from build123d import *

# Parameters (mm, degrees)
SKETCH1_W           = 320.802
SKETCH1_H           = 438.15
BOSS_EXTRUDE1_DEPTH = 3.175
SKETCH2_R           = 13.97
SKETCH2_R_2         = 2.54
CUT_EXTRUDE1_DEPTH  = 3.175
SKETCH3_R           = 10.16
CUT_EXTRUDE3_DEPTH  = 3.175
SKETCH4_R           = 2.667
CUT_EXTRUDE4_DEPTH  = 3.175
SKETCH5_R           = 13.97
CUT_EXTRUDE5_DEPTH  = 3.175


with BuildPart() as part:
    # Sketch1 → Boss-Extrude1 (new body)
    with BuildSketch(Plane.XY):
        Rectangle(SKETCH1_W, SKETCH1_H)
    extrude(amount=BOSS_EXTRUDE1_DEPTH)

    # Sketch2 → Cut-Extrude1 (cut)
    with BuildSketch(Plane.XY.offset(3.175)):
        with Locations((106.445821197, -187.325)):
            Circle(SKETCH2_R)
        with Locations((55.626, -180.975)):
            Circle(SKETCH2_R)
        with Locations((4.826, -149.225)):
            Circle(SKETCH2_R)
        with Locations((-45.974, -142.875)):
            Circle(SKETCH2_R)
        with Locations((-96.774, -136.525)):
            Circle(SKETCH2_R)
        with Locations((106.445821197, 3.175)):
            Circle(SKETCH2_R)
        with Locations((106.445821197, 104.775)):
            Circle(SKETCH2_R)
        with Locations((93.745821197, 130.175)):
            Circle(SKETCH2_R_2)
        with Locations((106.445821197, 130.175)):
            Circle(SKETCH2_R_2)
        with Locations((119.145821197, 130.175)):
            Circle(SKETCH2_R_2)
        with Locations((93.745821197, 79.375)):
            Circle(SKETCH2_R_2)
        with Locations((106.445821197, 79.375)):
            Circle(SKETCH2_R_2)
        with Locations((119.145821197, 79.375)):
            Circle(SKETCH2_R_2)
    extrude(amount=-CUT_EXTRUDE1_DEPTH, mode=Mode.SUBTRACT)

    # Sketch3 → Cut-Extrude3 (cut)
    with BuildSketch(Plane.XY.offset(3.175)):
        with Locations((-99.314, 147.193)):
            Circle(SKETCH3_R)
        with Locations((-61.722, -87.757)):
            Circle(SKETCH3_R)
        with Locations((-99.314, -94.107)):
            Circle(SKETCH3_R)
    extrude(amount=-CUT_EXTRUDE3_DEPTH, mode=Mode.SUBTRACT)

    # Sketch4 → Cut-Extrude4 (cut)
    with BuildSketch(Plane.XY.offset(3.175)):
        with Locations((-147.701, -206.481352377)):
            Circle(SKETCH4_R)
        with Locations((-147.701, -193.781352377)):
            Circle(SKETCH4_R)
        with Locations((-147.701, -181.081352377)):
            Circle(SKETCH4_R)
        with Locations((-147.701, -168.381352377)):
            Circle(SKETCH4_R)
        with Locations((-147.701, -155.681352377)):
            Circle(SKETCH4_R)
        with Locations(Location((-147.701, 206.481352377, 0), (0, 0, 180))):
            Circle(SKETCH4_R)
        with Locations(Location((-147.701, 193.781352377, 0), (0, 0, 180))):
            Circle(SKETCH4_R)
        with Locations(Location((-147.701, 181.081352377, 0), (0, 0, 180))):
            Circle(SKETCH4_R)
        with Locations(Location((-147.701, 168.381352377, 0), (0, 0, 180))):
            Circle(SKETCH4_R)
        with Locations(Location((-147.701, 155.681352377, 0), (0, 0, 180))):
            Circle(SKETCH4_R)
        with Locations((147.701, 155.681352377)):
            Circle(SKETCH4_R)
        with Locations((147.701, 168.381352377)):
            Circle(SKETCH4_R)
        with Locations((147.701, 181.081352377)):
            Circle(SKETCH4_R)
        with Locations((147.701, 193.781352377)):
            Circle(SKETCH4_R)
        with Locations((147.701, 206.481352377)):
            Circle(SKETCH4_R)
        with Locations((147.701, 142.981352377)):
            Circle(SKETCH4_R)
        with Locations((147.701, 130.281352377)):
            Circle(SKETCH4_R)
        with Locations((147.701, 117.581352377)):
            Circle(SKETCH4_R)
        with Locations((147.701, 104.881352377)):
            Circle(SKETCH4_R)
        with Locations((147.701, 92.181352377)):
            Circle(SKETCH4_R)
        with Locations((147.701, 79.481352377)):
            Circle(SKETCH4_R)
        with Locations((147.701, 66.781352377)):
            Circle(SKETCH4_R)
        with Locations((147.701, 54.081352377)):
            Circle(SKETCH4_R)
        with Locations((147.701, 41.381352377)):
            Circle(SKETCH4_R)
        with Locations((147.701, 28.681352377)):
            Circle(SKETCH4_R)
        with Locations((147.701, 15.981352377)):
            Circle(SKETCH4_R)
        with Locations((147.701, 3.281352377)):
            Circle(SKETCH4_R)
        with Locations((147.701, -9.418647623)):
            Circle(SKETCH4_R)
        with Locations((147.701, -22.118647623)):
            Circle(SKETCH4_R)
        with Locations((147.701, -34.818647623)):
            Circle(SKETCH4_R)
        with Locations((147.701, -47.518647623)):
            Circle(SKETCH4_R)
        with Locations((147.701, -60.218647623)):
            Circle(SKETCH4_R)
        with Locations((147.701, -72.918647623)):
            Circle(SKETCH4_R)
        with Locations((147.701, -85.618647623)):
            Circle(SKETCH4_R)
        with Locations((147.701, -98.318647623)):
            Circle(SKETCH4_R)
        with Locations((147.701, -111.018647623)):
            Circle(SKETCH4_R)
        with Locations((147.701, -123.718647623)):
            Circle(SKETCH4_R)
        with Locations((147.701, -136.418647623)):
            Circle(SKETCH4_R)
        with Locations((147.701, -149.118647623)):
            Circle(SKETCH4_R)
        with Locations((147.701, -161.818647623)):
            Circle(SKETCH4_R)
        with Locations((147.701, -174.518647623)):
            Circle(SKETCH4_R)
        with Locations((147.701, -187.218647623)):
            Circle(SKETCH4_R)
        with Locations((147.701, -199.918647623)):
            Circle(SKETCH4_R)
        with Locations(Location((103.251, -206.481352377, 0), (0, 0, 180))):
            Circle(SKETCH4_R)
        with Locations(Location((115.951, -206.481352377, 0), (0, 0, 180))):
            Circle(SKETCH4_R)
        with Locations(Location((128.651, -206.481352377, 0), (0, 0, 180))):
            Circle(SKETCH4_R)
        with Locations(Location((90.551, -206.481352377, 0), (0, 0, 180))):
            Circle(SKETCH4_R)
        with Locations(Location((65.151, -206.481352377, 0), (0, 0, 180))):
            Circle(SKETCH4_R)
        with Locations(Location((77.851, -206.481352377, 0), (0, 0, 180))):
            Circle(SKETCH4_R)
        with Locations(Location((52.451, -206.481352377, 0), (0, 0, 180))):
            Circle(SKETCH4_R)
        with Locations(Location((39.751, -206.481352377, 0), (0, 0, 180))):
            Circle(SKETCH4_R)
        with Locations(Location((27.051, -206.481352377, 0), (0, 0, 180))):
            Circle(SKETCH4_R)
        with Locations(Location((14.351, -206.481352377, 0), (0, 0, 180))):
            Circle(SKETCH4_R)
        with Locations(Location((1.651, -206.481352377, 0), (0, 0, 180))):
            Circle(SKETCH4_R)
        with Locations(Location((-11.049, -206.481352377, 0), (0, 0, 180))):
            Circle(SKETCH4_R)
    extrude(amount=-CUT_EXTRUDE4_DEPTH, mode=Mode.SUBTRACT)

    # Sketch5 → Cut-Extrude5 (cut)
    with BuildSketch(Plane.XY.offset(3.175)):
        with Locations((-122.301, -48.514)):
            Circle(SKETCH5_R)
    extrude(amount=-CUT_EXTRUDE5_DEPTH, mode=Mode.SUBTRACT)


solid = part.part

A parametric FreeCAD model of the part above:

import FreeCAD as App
import Part
import Sketcher
from FreeCAD import Vector
Q = App.Units.Quantity

doc = App.newDocument("Part")
params = doc.addObject("Spreadsheet::Sheet", "Params")
for row, (alias, value) in enumerate([
    ("sketch1_width", "12.63 in"),
    ("sketch1_height", "17.25 in"),
    ("pad1_length", "0.125 in"),
    ("sketch2_diameter", "1.1 in"),
    ("sketch2_diameter2", "0.2 in"),
    ("pocket1_length", "0.125 in"),
    ("sketch3_diameter", "0.8 in"),
    ("pocket2_length", "0.125 in"),
    ("sketch4_diameter", "0.21 in"),
    ("pocket3_length", "0.125 in"),
    ("sketch5_diameter", "1.1 in"),
    ("pocket4_length", "0.125 in"),
], start=1):
    params.set(f"A{row}", alias)
    params.set(f"B{row}", "=" + value)
    params.setAlias(f"B{row}", alias)

body = doc.addObject("PartDesign::Body", "Body")

sketch1 = body.newObject("Sketcher::SketchObject", "Sketch")
sketch1.AttachmentSupport = (doc.getObject("XY_Plane"), [""])
sketch1.MapMode = "FlatFace"
sketch1.addGeometry([
    Part.LineSegment(Vector(-160, 219, 0), Vector(-160, -219, 0)),
    Part.LineSegment(Vector(-160, -219, 0), Vector(160, -219, 0)),
    Part.LineSegment(Vector(160, -219, 0), Vector(160, 219, 0)),
    Part.LineSegment(Vector(160, 219, 0), Vector(-160, 219, 0)),
], False)
sketch1.addConstraint([
    Sketcher.Constraint("Coincident", 0, 2, 1, 1),
    Sketcher.Constraint("Coincident", 1, 2, 2, 1),
    Sketcher.Constraint("Coincident", 2, 2, 3, 1),
    Sketcher.Constraint("Coincident", 3, 2, 0, 1),
    Sketcher.Constraint("Vertical", 0),
    Sketcher.Constraint("Horizontal", 1),
    Sketcher.Constraint("Vertical", 2),
    Sketcher.Constraint("Horizontal", 3),
    Sketcher.Constraint("Symmetric", 0, 2, 2, 2, -1, 1),
    Sketcher.Constraint("DistanceX", 1, 1, 1, 2, Q("12.63 in")),
    Sketcher.Constraint("DistanceY", 0, 2, 0, 1, Q("17.25 in")),
])
sketch1.setExpression("Constraints[9]", "Params.sketch1_width")
sketch1.setExpression("Constraints[10]", "Params.sketch1_height")
pad1 = body.newObject("PartDesign::Pad", "Pad")
pad1.Profile = sketch1
pad1.setExpression("Length", "Params.pad1_length")

sketch2 = body.newObject("Sketcher::SketchObject", "Sketch001")
sketch2.AttachmentSupport = (doc.getObject("XY_Plane"), [""])
sketch2.MapMode = "FlatFace"
sketch2.AttachmentOffset = App.Placement(Vector(0, 0, 0.125 * 25.4), App.Rotation())
sketch2.addGeometry([
    Part.Circle(Vector(106.4, -187.3, 0), Vector(0, 0, 1), 14),
    Part.Circle(Vector(55.6, -181, 0), Vector(0, 0, 1), 14),
    Part.Circle(Vector(4.8, -149.2, 0), Vector(0, 0, 1), 14),
    Part.Circle(Vector(-46, -142.9, 0), Vector(0, 0, 1), 14),
    Part.Circle(Vector(-96.8, -136.5, 0), Vector(0, 0, 1), 14),
    Part.Circle(Vector(106.4, 3.2, 0), Vector(0, 0, 1), 14),
    Part.Circle(Vector(106.4, 104.8, 0), Vector(0, 0, 1), 14),
    Part.Circle(Vector(93.7, 130.2, 0), Vector(0, 0, 1), 2.5),
    Part.Circle(Vector(106.4, 130.2, 0), Vector(0, 0, 1), 2.5),
    Part.Circle(Vector(119.1, 130.2, 0), Vector(0, 0, 1), 2.5),
    Part.Circle(Vector(93.7, 79.4, 0), Vector(0, 0, 1), 2.5),
    Part.Circle(Vector(106.4, 79.4, 0), Vector(0, 0, 1), 2.5),
    Part.Circle(Vector(119.1, 79.4, 0), Vector(0, 0, 1), 2.5),
], False)
sketch2.addConstraint([
    Sketcher.Constraint("Equal", 0, 1),
    Sketcher.Constraint("Equal", 1, 2),
    Sketcher.Constraint("Equal", 2, 3),
    Sketcher.Constraint("Equal", 3, 4),
    Sketcher.Constraint("Equal", 4, 5),
    Sketcher.Constraint("Equal", 5, 6),
    Sketcher.Constraint("Equal", 7, 8),
    Sketcher.Constraint("Equal", 8, 9),
    Sketcher.Constraint("Equal", 9, 10),
    Sketcher.Constraint("Equal", 10, 11),
    Sketcher.Constraint("Equal", 11, 12),
    Sketcher.Constraint("Horizontal", 7, 3, 8, 3),
    Sketcher.Constraint("Horizontal", 8, 3, 9, 3),
    Sketcher.Constraint("Horizontal", 10, 3, 11, 3),
    Sketcher.Constraint("Horizontal", 11, 3, 12, 3),
    Sketcher.Constraint("Vertical", 0, 3, 5, 3),
    Sketcher.Constraint("Vertical", 5, 3, 6, 3),
    Sketcher.Constraint("Vertical", 6, 3, 8, 3),
    Sketcher.Constraint("Vertical", 7, 3, 10, 3),
    Sketcher.Constraint("Vertical", 8, 3, 11, 3),
    Sketcher.Constraint("Vertical", 9, 3, 12, 3),
    Sketcher.Constraint("Diameter", 0, Q("1.1 in")),
    Sketcher.Constraint("Diameter", 7, Q("0.2 in")),
    Sketcher.Constraint("DistanceX", 2, 3, 1, 3, Q("2 in")),
    Sketcher.Constraint("DistanceX", 3, 3, 2, 3, Q("2 in")),
    Sketcher.Constraint("DistanceX", 4, 3, 3, 3, Q("2 in")),
    Sketcher.Constraint("DistanceY", 0, 3, 4, 3, Q("2 in")),
    Sketcher.Constraint("DistanceY", 2, 3, 5, 3, Q("6 in")),
    Sketcher.Constraint("DistanceY", 5, 3, 6, 3, Q("4 in")),
    Sketcher.Constraint("DistanceY", 6, 3, 7, 3, Q("1 in")),
    Sketcher.Constraint("DistanceX", 7, 3, 9, 3, Q("1 in")),
    Sketcher.Constraint("DistanceY", 10, 3, 6, 3, Q("1 in")),
    Sketcher.Constraint("DistanceY", 0, 3, 2, 3, Q("1.5 in")),
    Sketcher.Constraint("DistanceY", 1, 3, 3, 3, Q("1.5 in")),
    Sketcher.Constraint("DistanceX", 7, 3, 6, 3, Q("0.5 in")),
    Sketcher.Constraint("DistanceX", -1, 1, 1, 3, Q("2.19 in")),
    Sketcher.Constraint("DistanceY", 0, 3, 1, 3, Q("0.25 in")),
    Sketcher.Constraint("DistanceY", 0, 3, -1, 1, Q("7.375 in")),
    Sketcher.Constraint("DistanceX", -1, 1, 0, 3, 106.445821),
])
sketch2.setExpression("Constraints[21]", "Params.sketch2_diameter")
sketch2.setExpression("Constraints[22]", "Params.sketch2_diameter2")
pocket1 = body.newObject("PartDesign::Pocket", "Pocket")
pocket1.Profile = sketch2
pocket1.setExpression("Length", "Params.pocket1_length")

sketch3 = body.newObject("Sketcher::SketchObject", "Sketch002")
sketch3.AttachmentSupport = (doc.getObject("XY_Plane"), [""])
sketch3.MapMode = "FlatFace"
sketch3.AttachmentOffset = App.Placement(Vector(0, 0, 0.125 * 25.4), App.Rotation())
sketch3.addGeometry([
    Part.Circle(Vector(-99, 147, 0), Vector(0, 0, 1), 10),
    Part.Circle(Vector(-62, -88, 0), Vector(0, 0, 1), 10),
    Part.Circle(Vector(-99, -94, 0), Vector(0, 0, 1), 10),
], False)
sketch3.addConstraint([
    Sketcher.Constraint("Equal", 0, 1),
    Sketcher.Constraint("Equal", 1, 2),
    Sketcher.Constraint("Vertical", 0, 3, 2, 3),
    Sketcher.Constraint("Diameter", 0, Q("0.8 in")),
    Sketcher.Constraint("DistanceY", 2, 3, 0, 3, Q("9.5 in")),
    Sketcher.Constraint("DistanceX", 0, 3, -1, 1, Q("3.91 in")),
    Sketcher.Constraint("DistanceX", 1, 3, -1, 1, Q("2.43 in")),
    Sketcher.Constraint("DistanceY", 1, 3, 0, 3, Q("9.25 in")),
    Sketcher.Constraint("DistanceY", -1, 1, 0, 3, Q("5.795 in")),
])
sketch3.setExpression("Constraints[3]", "Params.sketch3_diameter")
pocket2 = body.newObject("PartDesign::Pocket", "Pocket001")
pocket2.Profile = sketch3
pocket2.setExpression("Length", "Params.pocket2_length")

sketch4 = body.newObject("Sketcher::SketchObject", "Sketch003")
sketch4.AttachmentSupport = (doc.getObject("XY_Plane"), [""])
sketch4.MapMode = "FlatFace"
sketch4.AttachmentOffset = App.Placement(Vector(0, 0, 0.125 * 25.4), App.Rotation())
sketch4.addGeometry([
    Part.Circle(Vector(-147.7, -206.5, 0), Vector(0, 0, 1), 2.7),
    Part.Circle(Vector(-147.7, -193.8, 0), Vector(0, 0, 1), 2.7),
    Part.Circle(Vector(-147.7, -181.1, 0), Vector(0, 0, 1), 2.7),
    Part.Circle(Vector(-147.7, -168.4, 0), Vector(0, 0, 1), 2.7),
    Part.Circle(Vector(-147.7, -155.7, 0), Vector(0, 0, 1), 2.7),
    Part.Circle(Vector(-147.7, 206.5, 0), Vector(0, 0, 1), 2.7),
    Part.Circle(Vector(-147.7, 193.8, 0), Vector(0, 0, 1), 2.7),
    Part.Circle(Vector(-147.7, 181.1, 0), Vector(0, 0, 1), 2.7),
    Part.Circle(Vector(-147.7, 168.4, 0), Vector(0, 0, 1), 2.7),
    Part.Circle(Vector(-147.7, 155.7, 0), Vector(0, 0, 1), 2.7),
    Part.Circle(Vector(147.7, 155.7, 0), Vector(0, 0, 1), 2.7),
    Part.Circle(Vector(147.7, 168.4, 0), Vector(0, 0, 1), 2.7),
    Part.Circle(Vector(147.7, 181.1, 0), Vector(0, 0, 1), 2.7),
    Part.Circle(Vector(147.7, 193.8, 0), Vector(0, 0, 1), 2.7),
    Part.Circle(Vector(147.7, 206.5, 0), Vector(0, 0, 1), 2.7),
    Part.Circle(Vector(147.7, 143, 0), Vector(0, 0, 1), 2.7),
    Part.Circle(Vector(147.7, 130.3, 0), Vector(0, 0, 1), 2.7),
    Part.Circle(Vector(147.7, 117.6, 0), Vector(0, 0, 1), 2.7),
    Part.Circle(Vector(147.7, 104.9, 0), Vector(0, 0, 1), 2.7),
    Part.Circle(Vector(147.7, 92.2, 0), Vector(0, 0, 1), 2.7),
    Part.Circle(Vector(147.7, 79.5, 0), Vector(0, 0, 1), 2.7),
    Part.Circle(Vector(147.7, 66.8, 0), Vector(0, 0, 1), 2.7),
    Part.Circle(Vector(147.7, 54.1, 0), Vector(0, 0, 1), 2.7),
    Part.Circle(Vector(147.7, 41.4, 0), Vector(0, 0, 1), 2.7),
    Part.Circle(Vector(147.7, 28.7, 0), Vector(0, 0, 1), 2.7),
    Part.Circle(Vector(147.7, 16, 0), Vector(0, 0, 1), 2.7),
    Part.Circle(Vector(147.7, 3.3, 0), Vector(0, 0, 1), 2.7),
    Part.Circle(Vector(147.7, -9.4, 0), Vector(0, 0, 1), 2.7),
    Part.Circle(Vector(147.7, -22.1, 0), Vector(0, 0, 1), 2.7),
    Part.Circle(Vector(147.7, -34.8, 0), Vector(0, 0, 1), 2.7),
    Part.Circle(Vector(147.7, -47.5, 0), Vector(0, 0, 1), 2.7),
    Part.Circle(Vector(147.7, -60.2, 0), Vector(0, 0, 1), 2.7),
    Part.Circle(Vector(147.7, -72.9, 0), Vector(0, 0, 1), 2.7),
    Part.Circle(Vector(147.7, -85.6, 0), Vector(0, 0, 1), 2.7),
    Part.Circle(Vector(147.7, -98.3, 0), Vector(0, 0, 1), 2.7),
    Part.Circle(Vector(147.7, -111, 0), Vector(0, 0, 1), 2.7),
    Part.Circle(Vector(147.7, -123.7, 0), Vector(0, 0, 1), 2.7),
    Part.Circle(Vector(147.7, -136.4, 0), Vector(0, 0, 1), 2.7),
    Part.Circle(Vector(147.7, -149.1, 0), Vector(0, 0, 1), 2.7),
    Part.Circle(Vector(147.7, -161.8, 0), Vector(0, 0, 1), 2.7),
    Part.Circle(Vector(147.7, -174.5, 0), Vector(0, 0, 1), 2.7),
    Part.Circle(Vector(147.7, -187.2, 0), Vector(0, 0, 1), 2.7),
    Part.Circle(Vector(147.7, -199.9, 0), Vector(0, 0, 1), 2.7),
    Part.Circle(Vector(103.3, -206.5, 0), Vector(0, 0, 1), 2.7),
    Part.Circle(Vector(116, -206.5, 0), Vector(0, 0, 1), 2.7),
    Part.Circle(Vector(128.7, -206.5, 0), Vector(0, 0, 1), 2.7),
    Part.Circle(Vector(90.6, -206.5, 0), Vector(0, 0, 1), 2.7),
    Part.Circle(Vector(65.2, -206.5, 0), Vector(0, 0, 1), 2.7),
    Part.Circle(Vector(77.9, -206.5, 0), Vector(0, 0, 1), 2.7),
    Part.Circle(Vector(52.5, -206.5, 0), Vector(0, 0, 1), 2.7),
    Part.Circle(Vector(39.8, -206.5, 0), Vector(0, 0, 1), 2.7),
    Part.Circle(Vector(27.1, -206.5, 0), Vector(0, 0, 1), 2.7),
    Part.Circle(Vector(14.4, -206.5, 0), Vector(0, 0, 1), 2.7),
    Part.Circle(Vector(1.7, -206.5, 0), Vector(0, 0, 1), 2.7),
    Part.Circle(Vector(-11, -206.5, 0), Vector(0, 0, 1), 2.7),
], False)
sketch4.addConstraint([
    Sketcher.Constraint("Equal", 0, 1),
    Sketcher.Constraint("Equal", 1, 2),
    Sketcher.Constraint("Equal", 2, 3),
    Sketcher.Constraint("Equal", 3, 4),
    Sketcher.Constraint("Equal", 4, 5),
    Sketcher.Constraint("Equal", 5, 6),
    Sketcher.Constraint("Equal", 6, 7),
    Sketcher.Constraint("Equal", 7, 8),
    Sketcher.Constraint("Equal", 8, 9),
    Sketcher.Constraint("Equal", 9, 10),
    Sketcher.Constraint("Equal", 10, 11),
    Sketcher.Constraint("Equal", 11, 12),
    Sketcher.Constraint("Equal", 12, 13),
    Sketcher.Constraint("Equal", 13, 14),
    Sketcher.Constraint("Equal", 14, 15),
    Sketcher.Constraint("Equal", 15, 16),
    Sketcher.Constraint("Equal", 16, 17),
    Sketcher.Constraint("Equal", 17, 18),
    Sketcher.Constraint("Equal", 18, 19),
    Sketcher.Constraint("Equal", 19, 20),
    Sketcher.Constraint("Equal", 20, 21),
    Sketcher.Constraint("Equal", 21, 22),
    Sketcher.Constraint("Equal", 22, 23),
    Sketcher.Constraint("Equal", 23, 24),
    Sketcher.Constraint("Equal", 24, 25),
    Sketcher.Constraint("Equal", 25, 26),
    Sketcher.Constraint("Equal", 26, 27),
    Sketcher.Constraint("Equal", 27, 28),
    Sketcher.Constraint("Equal", 28, 29),
    Sketcher.Constraint("Equal", 29, 30),
    Sketcher.Constraint("Equal", 30, 31),
    Sketcher.Constraint("Equal", 31, 32),
    Sketcher.Constraint("Equal", 32, 33),
    Sketcher.Constraint("Equal", 33, 34),
    Sketcher.Constraint("Equal", 34, 35),
    Sketcher.Constraint("Equal", 35, 36),
    Sketcher.Constraint("Equal", 36, 37),
    Sketcher.Constraint("Equal", 37, 38),
    Sketcher.Constraint("Equal", 38, 39),
    Sketcher.Constraint("Equal", 39, 40),
    Sketcher.Constraint("Equal", 40, 41),
    Sketcher.Constraint("Equal", 41, 42),
    Sketcher.Constraint("Equal", 42, 43),
    Sketcher.Constraint("Equal", 43, 44),
    Sketcher.Constraint("Equal", 44, 45),
    Sketcher.Constraint("Equal", 45, 46),
    Sketcher.Constraint("Equal", 46, 47),
    Sketcher.Constraint("Equal", 47, 48),
    Sketcher.Constraint("Equal", 48, 49),
    Sketcher.Constraint("Equal", 49, 50),
    Sketcher.Constraint("Equal", 50, 51),
    Sketcher.Constraint("Equal", 51, 52),
    Sketcher.Constraint("Equal", 52, 53),
    Sketcher.Constraint("Equal", 53, 54),
    Sketcher.Constraint("Symmetric", 4, 3, 10, 3, -1, 1),
    Sketcher.Constraint("Symmetric", 3, 3, 11, 3, -1, 1),
    Sketcher.Constraint("Symmetric", 2, 3, 12, 3, -1, 1),
    Sketcher.Constraint("Symmetric", 1, 3, 13, 3, -1, 1),
    Sketcher.Constraint("Symmetric", 0, 3, 14, 3, -1, 1),
    Sketcher.Constraint("Symmetric", 9, 3, 10, 3, -2),
    Sketcher.Constraint("Symmetric", 8, 3, 11, 3, -2),
    Sketcher.Constraint("Symmetric", 7, 3, 12, 3, -2),
    Sketcher.Constraint("Symmetric", 6, 3, 13, 3, -2),
    Sketcher.Constraint("Symmetric", 5, 3, 14, 3, -2),
    Sketcher.Constraint("Horizontal", 0, 3, 43, 3),
    Sketcher.Constraint("Horizontal", 43, 3, 44, 3),
    Sketcher.Constraint("Horizontal", 44, 3, 45, 3),
    Sketcher.Constraint("Horizontal", 45, 3, 46, 3),
    Sketcher.Constraint("Horizontal", 46, 3, 47, 3),
    Sketcher.Constraint("Horizontal", 47, 3, 48, 3),
    Sketcher.Constraint("Horizontal", 48, 3, 49, 3),
    Sketcher.Constraint("Horizontal", 49, 3, 50, 3),
    Sketcher.Constraint("Horizontal", 50, 3, 51, 3),
    Sketcher.Constraint("Horizontal", 51, 3, 52, 3),
    Sketcher.Constraint("Horizontal", 52, 3, 53, 3),
    Sketcher.Constraint("Horizontal", 53, 3, 54, 3),
    Sketcher.Constraint("Vertical", 0, 3, 1, 3),
    Sketcher.Constraint("Vertical", 1, 3, 2, 3),
    Sketcher.Constraint("Vertical", 2, 3, 3, 3),
    Sketcher.Constraint("Vertical", 3, 3, 4, 3),
    Sketcher.Constraint("Vertical", 14, 3, 15, 3),
    Sketcher.Constraint("Vertical", 15, 3, 16, 3),
    Sketcher.Constraint("Vertical", 16, 3, 17, 3),
    Sketcher.Constraint("Vertical", 17, 3, 18, 3),
    Sketcher.Constraint("Vertical", 18, 3, 19, 3),
    Sketcher.Constraint("Vertical", 19, 3, 20, 3),
    Sketcher.Constraint("Vertical", 20, 3, 21, 3),
    Sketcher.Constraint("Vertical", 21, 3, 22, 3),
    Sketcher.Constraint("Vertical", 22, 3, 23, 3),
    Sketcher.Constraint("Vertical", 23, 3, 24, 3),
    Sketcher.Constraint("Vertical", 24, 3, 25, 3),
    Sketcher.Constraint("Vertical", 25, 3, 26, 3),
    Sketcher.Constraint("Vertical", 26, 3, 27, 3),
    Sketcher.Constraint("Vertical", 27, 3, 28, 3),
    Sketcher.Constraint("Vertical", 28, 3, 29, 3),
    Sketcher.Constraint("Vertical", 29, 3, 30, 3),
    Sketcher.Constraint("Vertical", 30, 3, 31, 3),
    Sketcher.Constraint("Vertical", 31, 3, 32, 3),
    Sketcher.Constraint("Vertical", 32, 3, 33, 3),
    Sketcher.Constraint("Vertical", 33, 3, 34, 3),
    Sketcher.Constraint("Vertical", 34, 3, 35, 3),
    Sketcher.Constraint("Vertical", 35, 3, 36, 3),
    Sketcher.Constraint("Vertical", 36, 3, 37, 3),
    Sketcher.Constraint("Vertical", 37, 3, 38, 3),
    Sketcher.Constraint("Vertical", 38, 3, 39, 3),
    Sketcher.Constraint("Vertical", 39, 3, 40, 3),
    Sketcher.Constraint("Vertical", 40, 3, 41, 3),
    Sketcher.Constraint("Vertical", 41, 3, 42, 3),
    Sketcher.Constraint("Diameter", 0, Q("0.21 in")),
    Sketcher.Constraint("DistanceY", 0, 3, 2, 3, Q("1 in")),
    Sketcher.Constraint("DistanceY", 1, 3, 3, 3, Q("1 in")),
    Sketcher.Constraint("DistanceY", 2, 3, 4, 3, Q("1 in")),
    Sketcher.Constraint("DistanceY", 15, 3, 11, 3, Q("1 in")),
    Sketcher.Constraint("DistanceY", 16, 3, 10, 3, Q("1 in")),
    Sketcher.Constraint("DistanceY", 17, 3, 15, 3, Q("1 in")),
    Sketcher.Constraint("DistanceY", 18, 3, 16, 3, Q("1 in")),
    Sketcher.Constraint("DistanceY", 19, 3, 17, 3, Q("1 in")),
    Sketcher.Constraint("DistanceY", 20, 3, 18, 3, Q("1 in")),
    Sketcher.Constraint("DistanceY", 21, 3, 19, 3, Q("1 in")),
    Sketcher.Constraint("DistanceY", 22, 3, 20, 3, Q("1 in")),
    Sketcher.Constraint("DistanceY", 23, 3, 21, 3, Q("1 in")),
    Sketcher.Constraint("DistanceY", 24, 3, 22, 3, Q("1 in")),
    Sketcher.Constraint("DistanceY", 25, 3, 23, 3, Q("1 in")),
    Sketcher.Constraint("DistanceY", 26, 3, 24, 3, Q("1 in")),
    Sketcher.Constraint("DistanceY", 27, 3, 25, 3, Q("1 in")),
    Sketcher.Constraint("DistanceY", 28, 3, 26, 3, Q("1 in")),
    Sketcher.Constraint("DistanceY", 29, 3, 27, 3, Q("1 in")),
    Sketcher.Constraint("DistanceY", 30, 3, 28, 3, Q("1 in")),
    Sketcher.Constraint("DistanceY", 31, 3, 29, 3, Q("1 in")),
    Sketcher.Constraint("DistanceY", 32, 3, 30, 3, Q("1 in")),
    Sketcher.Constraint("DistanceY", 33, 3, 31, 3, Q("1 in")),
    Sketcher.Constraint("DistanceY", 34, 3, 32, 3, Q("1 in")),
    Sketcher.Constraint("DistanceY", 35, 3, 33, 3, Q("1 in")),
    Sketcher.Constraint("DistanceY", 36, 3, 34, 3, Q("1 in")),
    Sketcher.Constraint("DistanceY", 37, 3, 35, 3, Q("1 in")),
    Sketcher.Constraint("DistanceY", 38, 3, 36, 3, Q("1 in")),
    Sketcher.Constraint("DistanceY", 39, 3, 37, 3, Q("1 in")),
    Sketcher.Constraint("DistanceY", 40, 3, 38, 3, Q("1 in")),
    Sketcher.Constraint("DistanceY", 41, 3, 39, 3, Q("1 in")),
    Sketcher.Constraint("DistanceY", 42, 3, 40, 3, Q("1 in")),
    Sketcher.Constraint("DistanceX", 43, 3, 45, 3, Q("1 in")),
    Sketcher.Constraint("DistanceX", 46, 3, 44, 3, Q("1 in")),
    Sketcher.Constraint("DistanceX", 47, 3, 46, 3, Q("1 in")),
    Sketcher.Constraint("DistanceX", 48, 3, 43, 3, Q("1 in")),
    Sketcher.Constraint("DistanceX", 49, 3, 48, 3, Q("1 in")),
    Sketcher.Constraint("DistanceX", 50, 3, 47, 3, Q("1 in")),
    Sketcher.Constraint("DistanceX", 51, 3, 49, 3, Q("1 in")),
    Sketcher.Constraint("DistanceX", 52, 3, 50, 3, Q("1 in")),
    Sketcher.Constraint("DistanceX", 53, 3, 51, 3, Q("1 in")),
    Sketcher.Constraint("DistanceX", 54, 3, 52, 3, Q("1 in")),
    Sketcher.Constraint("DistanceY", 0, 3, 1, 3, Q("0.5 in")),
    Sketcher.Constraint("DistanceX", 43, 3, 44, 3, Q("0.5 in")),
    Sketcher.Constraint("DistanceX", 9, 3, 10, 3, Q("11.63 in")),
    Sketcher.Constraint("DistanceX", 43, 3, 42, 3, Q("1.75 in")),
    Sketcher.Constraint("DistanceY", 0, 3, -1, 1, 206.481352),
])
sketch4.setExpression("Constraints[108]", "Params.sketch4_diameter")
pocket3 = body.newObject("PartDesign::Pocket", "Pocket002")
pocket3.Profile = sketch4
pocket3.setExpression("Length", "Params.pocket3_length")

sketch5 = body.newObject("Sketcher::SketchObject", "Sketch004")
sketch5.AttachmentSupport = (doc.getObject("XY_Plane"), [""])
sketch5.MapMode = "FlatFace"
sketch5.AttachmentOffset = App.Placement(Vector(0, 0, 0.125 * 25.4), App.Rotation())
sketch5.addGeometry(Part.Circle(Vector(-122, -49, 0), Vector(0, 0, 1), 14), False)
sketch5.addConstraint([
    Sketcher.Constraint("Diameter", 0, Q("1.1 in")),
    Sketcher.Constraint("DistanceY", 0, 3, -1, 1, Q("1.91 in")),
    Sketcher.Constraint("DistanceX", 0, 3, -1, 1, Q("4.815 in")),
])
sketch5.setExpression("Constraints[0]", "Params.sketch5_diameter")
pocket4 = body.newObject("PartDesign::Pocket", "Pocket003")
pocket4.Profile = sketch5
pocket4.setExpression("Length", "Params.pocket4_length")

doc.recompute()
